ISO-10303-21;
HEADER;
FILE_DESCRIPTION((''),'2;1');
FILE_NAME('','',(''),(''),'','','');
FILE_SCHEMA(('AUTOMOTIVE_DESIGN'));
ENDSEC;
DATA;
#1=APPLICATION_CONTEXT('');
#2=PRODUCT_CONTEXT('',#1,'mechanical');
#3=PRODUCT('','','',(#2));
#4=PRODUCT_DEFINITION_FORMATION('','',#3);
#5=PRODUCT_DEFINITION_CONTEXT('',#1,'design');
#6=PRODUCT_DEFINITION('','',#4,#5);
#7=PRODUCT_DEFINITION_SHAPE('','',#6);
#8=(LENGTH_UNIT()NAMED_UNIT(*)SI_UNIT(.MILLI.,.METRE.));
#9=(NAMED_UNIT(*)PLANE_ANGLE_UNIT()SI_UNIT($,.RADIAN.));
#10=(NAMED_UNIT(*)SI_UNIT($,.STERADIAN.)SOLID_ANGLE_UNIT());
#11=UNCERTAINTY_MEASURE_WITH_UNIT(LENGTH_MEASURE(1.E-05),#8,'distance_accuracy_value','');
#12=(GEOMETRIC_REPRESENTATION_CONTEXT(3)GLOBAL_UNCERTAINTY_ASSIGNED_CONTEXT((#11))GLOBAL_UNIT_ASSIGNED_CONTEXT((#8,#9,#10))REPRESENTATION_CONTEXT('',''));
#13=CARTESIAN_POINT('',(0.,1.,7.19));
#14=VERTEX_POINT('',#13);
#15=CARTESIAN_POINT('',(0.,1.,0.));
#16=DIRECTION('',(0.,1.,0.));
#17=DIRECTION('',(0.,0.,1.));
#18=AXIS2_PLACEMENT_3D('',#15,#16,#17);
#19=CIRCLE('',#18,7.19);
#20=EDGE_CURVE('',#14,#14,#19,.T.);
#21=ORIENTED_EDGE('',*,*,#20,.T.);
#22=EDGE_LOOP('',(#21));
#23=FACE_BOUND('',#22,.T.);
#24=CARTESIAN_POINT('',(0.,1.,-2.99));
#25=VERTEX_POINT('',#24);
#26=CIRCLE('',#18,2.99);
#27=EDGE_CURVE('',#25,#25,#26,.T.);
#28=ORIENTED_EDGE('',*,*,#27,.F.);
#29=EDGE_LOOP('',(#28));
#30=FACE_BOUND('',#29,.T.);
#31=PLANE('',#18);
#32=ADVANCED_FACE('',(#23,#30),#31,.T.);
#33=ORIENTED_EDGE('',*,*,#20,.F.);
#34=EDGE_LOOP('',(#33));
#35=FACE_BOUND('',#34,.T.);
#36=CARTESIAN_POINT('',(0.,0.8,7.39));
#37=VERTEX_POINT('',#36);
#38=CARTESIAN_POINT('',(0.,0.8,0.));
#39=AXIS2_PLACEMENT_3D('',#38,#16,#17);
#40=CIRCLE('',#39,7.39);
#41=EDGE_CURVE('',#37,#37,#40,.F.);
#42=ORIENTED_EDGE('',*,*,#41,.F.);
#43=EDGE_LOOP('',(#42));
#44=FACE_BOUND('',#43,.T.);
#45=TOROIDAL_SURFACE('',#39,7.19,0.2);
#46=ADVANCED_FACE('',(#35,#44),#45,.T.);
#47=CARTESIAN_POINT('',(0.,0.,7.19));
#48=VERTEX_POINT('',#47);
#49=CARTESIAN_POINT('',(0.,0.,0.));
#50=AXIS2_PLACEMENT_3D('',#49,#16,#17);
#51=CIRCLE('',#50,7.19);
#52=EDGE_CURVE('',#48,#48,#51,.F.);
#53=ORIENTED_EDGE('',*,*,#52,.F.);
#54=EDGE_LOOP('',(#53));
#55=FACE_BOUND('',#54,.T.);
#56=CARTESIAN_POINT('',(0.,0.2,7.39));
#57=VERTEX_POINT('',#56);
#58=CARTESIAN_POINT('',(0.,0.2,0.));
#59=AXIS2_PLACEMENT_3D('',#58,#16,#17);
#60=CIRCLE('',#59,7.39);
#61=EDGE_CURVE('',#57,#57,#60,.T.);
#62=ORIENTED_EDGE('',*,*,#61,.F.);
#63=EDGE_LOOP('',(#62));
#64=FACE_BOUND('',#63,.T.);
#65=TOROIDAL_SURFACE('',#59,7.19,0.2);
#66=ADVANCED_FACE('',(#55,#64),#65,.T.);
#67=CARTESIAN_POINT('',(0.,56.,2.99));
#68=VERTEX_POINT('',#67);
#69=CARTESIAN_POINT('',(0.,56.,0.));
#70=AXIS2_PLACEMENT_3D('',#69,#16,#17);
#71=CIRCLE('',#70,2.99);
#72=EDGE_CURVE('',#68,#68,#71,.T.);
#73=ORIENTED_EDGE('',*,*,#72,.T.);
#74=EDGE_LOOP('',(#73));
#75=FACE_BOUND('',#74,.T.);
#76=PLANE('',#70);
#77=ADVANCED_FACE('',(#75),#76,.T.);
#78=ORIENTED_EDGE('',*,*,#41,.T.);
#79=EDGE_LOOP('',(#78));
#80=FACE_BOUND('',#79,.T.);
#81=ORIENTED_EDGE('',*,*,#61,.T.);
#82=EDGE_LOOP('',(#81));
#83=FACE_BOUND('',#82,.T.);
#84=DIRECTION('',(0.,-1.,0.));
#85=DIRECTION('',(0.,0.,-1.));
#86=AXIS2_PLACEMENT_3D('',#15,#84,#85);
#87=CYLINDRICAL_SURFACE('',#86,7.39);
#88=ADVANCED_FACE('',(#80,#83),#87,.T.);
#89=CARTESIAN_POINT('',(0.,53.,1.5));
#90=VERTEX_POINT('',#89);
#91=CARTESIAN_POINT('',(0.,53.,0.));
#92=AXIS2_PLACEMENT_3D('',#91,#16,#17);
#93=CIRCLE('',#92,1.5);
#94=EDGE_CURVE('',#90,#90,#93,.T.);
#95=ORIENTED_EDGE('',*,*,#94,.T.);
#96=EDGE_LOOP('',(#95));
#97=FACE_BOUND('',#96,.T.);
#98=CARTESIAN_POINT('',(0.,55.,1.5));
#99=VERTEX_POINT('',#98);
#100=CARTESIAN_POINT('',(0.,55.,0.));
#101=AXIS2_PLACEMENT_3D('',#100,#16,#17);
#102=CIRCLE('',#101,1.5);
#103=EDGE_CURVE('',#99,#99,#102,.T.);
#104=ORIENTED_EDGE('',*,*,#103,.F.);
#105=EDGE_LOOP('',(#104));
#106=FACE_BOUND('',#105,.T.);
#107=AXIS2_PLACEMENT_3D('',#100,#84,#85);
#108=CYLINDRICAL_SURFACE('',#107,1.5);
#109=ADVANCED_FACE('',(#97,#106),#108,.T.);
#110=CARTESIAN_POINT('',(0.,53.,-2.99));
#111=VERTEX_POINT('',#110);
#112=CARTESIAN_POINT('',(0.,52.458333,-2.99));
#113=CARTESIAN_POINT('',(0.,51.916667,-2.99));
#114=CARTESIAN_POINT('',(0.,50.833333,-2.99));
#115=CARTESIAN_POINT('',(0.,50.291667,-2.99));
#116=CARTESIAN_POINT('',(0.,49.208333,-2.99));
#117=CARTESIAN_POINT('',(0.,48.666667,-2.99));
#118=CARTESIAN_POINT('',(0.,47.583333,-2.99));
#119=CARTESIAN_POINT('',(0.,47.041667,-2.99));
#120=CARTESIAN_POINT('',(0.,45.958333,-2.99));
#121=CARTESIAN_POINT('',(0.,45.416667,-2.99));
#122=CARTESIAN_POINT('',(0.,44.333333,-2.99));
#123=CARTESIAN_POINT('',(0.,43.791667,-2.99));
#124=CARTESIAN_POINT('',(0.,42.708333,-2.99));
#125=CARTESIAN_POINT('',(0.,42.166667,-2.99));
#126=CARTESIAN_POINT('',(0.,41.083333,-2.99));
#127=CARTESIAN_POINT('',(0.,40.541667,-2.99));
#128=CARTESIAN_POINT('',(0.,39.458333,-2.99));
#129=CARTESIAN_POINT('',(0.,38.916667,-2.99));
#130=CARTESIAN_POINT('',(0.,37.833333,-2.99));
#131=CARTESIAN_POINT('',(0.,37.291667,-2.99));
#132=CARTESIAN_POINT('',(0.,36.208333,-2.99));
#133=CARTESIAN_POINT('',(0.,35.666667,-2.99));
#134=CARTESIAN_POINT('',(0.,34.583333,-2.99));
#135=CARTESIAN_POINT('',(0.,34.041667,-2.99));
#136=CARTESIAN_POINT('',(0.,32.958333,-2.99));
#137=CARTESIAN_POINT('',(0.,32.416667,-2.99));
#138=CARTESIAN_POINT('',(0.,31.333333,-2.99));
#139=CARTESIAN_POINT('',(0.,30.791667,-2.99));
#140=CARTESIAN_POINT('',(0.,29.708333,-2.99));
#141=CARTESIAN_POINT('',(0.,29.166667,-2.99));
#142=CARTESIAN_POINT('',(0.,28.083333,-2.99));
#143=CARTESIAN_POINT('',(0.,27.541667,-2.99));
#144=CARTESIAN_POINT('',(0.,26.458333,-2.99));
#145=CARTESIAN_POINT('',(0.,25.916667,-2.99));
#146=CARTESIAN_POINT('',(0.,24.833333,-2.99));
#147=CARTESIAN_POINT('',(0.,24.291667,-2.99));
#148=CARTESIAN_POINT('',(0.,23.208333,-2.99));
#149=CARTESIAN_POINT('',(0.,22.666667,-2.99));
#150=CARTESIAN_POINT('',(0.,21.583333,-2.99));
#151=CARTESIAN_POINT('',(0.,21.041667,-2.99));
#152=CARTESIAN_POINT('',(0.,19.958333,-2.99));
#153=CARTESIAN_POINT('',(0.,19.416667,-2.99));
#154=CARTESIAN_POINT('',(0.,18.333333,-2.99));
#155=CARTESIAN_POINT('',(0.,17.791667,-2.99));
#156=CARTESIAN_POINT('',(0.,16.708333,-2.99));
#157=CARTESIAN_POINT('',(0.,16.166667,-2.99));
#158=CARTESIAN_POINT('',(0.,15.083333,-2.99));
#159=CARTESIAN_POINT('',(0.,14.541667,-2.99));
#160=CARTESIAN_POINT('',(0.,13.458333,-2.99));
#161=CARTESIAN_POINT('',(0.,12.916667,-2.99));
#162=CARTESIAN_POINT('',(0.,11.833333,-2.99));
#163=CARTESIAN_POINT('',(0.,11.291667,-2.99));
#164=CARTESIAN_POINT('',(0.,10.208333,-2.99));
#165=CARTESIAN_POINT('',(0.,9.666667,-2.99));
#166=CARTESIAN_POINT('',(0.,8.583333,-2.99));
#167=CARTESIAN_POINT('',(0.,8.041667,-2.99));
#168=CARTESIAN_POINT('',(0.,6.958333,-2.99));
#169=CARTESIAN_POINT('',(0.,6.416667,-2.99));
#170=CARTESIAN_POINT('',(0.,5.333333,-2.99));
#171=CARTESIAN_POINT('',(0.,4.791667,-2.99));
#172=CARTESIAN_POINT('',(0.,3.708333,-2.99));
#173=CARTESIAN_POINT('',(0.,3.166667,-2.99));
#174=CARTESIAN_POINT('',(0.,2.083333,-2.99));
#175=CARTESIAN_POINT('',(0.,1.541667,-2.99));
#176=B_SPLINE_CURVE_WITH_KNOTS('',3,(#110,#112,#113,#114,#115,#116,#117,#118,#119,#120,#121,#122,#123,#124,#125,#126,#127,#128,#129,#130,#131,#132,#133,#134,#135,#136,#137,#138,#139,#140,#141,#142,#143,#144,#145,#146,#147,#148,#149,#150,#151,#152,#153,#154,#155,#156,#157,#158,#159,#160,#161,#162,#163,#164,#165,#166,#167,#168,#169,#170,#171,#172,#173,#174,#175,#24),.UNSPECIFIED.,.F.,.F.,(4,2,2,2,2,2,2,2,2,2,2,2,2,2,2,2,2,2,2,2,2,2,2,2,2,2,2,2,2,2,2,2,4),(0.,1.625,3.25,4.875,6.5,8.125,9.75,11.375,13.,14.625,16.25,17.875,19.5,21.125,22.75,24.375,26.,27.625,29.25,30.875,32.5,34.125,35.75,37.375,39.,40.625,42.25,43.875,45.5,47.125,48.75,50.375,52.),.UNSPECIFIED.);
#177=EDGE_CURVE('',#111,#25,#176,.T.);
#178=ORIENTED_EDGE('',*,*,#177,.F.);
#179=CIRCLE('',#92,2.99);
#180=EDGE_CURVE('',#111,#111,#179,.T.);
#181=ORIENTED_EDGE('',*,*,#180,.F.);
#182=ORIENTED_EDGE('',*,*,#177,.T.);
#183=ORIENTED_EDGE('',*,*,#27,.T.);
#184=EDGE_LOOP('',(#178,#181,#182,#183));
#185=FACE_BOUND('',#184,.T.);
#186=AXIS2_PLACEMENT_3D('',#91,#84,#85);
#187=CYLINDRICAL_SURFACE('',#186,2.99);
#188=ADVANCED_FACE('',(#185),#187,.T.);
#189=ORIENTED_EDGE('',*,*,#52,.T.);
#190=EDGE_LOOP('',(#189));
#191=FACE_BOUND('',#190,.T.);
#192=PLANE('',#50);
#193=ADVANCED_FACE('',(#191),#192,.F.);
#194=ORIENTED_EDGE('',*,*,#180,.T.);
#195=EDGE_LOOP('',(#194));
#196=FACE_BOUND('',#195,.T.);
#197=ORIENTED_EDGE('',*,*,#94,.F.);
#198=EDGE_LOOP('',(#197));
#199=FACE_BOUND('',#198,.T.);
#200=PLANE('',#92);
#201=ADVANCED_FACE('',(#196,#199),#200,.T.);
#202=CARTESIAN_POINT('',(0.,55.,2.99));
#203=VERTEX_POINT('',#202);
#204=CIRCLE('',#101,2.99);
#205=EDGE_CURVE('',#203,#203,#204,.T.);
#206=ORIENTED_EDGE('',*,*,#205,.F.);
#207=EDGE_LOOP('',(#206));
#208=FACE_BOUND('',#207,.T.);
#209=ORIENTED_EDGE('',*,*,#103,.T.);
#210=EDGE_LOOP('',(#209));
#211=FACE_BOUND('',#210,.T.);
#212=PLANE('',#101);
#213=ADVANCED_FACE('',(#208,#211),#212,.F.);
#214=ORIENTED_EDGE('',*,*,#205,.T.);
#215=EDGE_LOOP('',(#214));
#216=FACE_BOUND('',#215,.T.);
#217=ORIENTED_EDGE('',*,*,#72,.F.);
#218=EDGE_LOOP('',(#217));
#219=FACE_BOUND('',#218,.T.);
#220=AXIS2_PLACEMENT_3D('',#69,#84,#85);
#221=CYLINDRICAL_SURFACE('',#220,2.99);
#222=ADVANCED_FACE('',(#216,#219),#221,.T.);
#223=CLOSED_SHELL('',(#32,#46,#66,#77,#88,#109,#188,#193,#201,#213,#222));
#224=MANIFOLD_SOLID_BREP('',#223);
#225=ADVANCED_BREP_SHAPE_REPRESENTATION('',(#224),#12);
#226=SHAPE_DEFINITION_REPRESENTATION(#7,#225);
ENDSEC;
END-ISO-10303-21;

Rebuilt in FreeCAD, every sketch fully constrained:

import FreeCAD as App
import Part
import Sketcher

V = App.Vector


def edges_at(feature, points):
    """Names of the edges that pass closest to the given points."""
    edges = feature.Shape.Edges
    near = lambda p: min(range(len(edges)), key=lambda i: edges[i].distToShape(Part.Vertex(*p))[0])
    return sorted({f"Edge{near(p) + 1}" for p in points})

doc = App.newDocument("Part")
body = doc.addObject("PartDesign::Body", "Body")

# Sketch on XZ plane
sketch1 = body.newObject("Sketcher::SketchObject", "Sketch")
sketch1.AttachmentSupport = (doc.getObject("XZ_Plane"), [""])
sketch1.MapMode = "FlatFace"
sketch1.addGeometry(Part.Circle(V(0, 0, 0), V(0, 0, 1), 7), False)
sketch1.addConstraint([
    Sketcher.Constraint("Coincident", 0, 3, -1, 1),
    Sketcher.Constraint("Diameter", 0, 14.78),
])
pad1 = body.newObject("PartDesign::Pad", "Pad")
pad1.Profile = sketch1
pad1.Length = 1
pad1.Reversed = True
doc.recompute()

fillet = body.newObject("PartDesign::Fillet", "Fillet")
fillet.Base = (pad1, edges_at(pad1, [(0, 0, -7.39), (0, 1, -7.39)]))
fillet.Radius = 0.2

# Sketch on XZ plane
sketch2 = body.newObject("Sketcher::SketchObject", "Sketch001")
sketch2.AttachmentSupport = (doc.getObject("XZ_Plane"), [""])
sketch2.MapMode = "FlatFace"
sketch2.AttachmentOffset = App.Placement(V(0, 0, -1), App.Rotation())
sketch2.addGeometry(Part.Circle(V(0, 0, 0), V(0, 0, 1), 3), False)
sketch2.addConstraint([
    Sketcher.Constraint("Coincident", 0, 3, -1, 1),
    Sketcher.Constraint("Diameter", 0, 5.98),
])
pad2 = body.newObject("PartDesign::Pad", "Pad001")
pad2.Profile = sketch2
pad2.Length = 52
pad2.Reversed = True

# Sketch on XZ plane
sketch3 = body.newObject("Sketcher::SketchObject", "Sketch002")
sketch3.AttachmentSupport = (doc.getObject("XZ_Plane"), [""])
sketch3.MapMode = "FlatFace"
sketch3.AttachmentOffset = App.Placement(V(0, 0, -53), App.Rotation())
sketch3.addGeometry(Part.Circle(V(0, 0, 0), V(0, 0, 1), 1.5), False)
sketch3.addConstraint([
    Sketcher.Constraint("Coincident", 0, 3, -1, 1),
    Sketcher.Constraint("Diameter", 0, 3.0),
])
pad3 = body.newObject("PartDesign::Pad", "Pad002")
pad3.Profile = sketch3
pad3.Length = 2
pad3.Reversed = True

# Sketch on XZ plane
sketch4 = body.newObject("Sketcher::SketchObject", "Sketch003")
sketch4.AttachmentSupport = (doc.getObject("XZ_Plane"), [""])
sketch4.MapMode = "FlatFace"
sketch4.AttachmentOffset = App.Placement(V(0, 0, -55), App.Rotation())
sketch4.addGeometry(Part.Circle(V(0, 0, 0), V(0, 0, 1), 3), False)
sketch4.addConstraint([
    Sketcher.Constraint("Coincident", 0, 3, -1, 1),
    Sketcher.Constraint("Diameter", 0, 5.98),
])
pad4 = body.newObject("PartDesign::Pad", "Pad003")
pad4.Profile = sketch4
pad4.Length = 1
pad4.Reversed = True

doc.recompute()
